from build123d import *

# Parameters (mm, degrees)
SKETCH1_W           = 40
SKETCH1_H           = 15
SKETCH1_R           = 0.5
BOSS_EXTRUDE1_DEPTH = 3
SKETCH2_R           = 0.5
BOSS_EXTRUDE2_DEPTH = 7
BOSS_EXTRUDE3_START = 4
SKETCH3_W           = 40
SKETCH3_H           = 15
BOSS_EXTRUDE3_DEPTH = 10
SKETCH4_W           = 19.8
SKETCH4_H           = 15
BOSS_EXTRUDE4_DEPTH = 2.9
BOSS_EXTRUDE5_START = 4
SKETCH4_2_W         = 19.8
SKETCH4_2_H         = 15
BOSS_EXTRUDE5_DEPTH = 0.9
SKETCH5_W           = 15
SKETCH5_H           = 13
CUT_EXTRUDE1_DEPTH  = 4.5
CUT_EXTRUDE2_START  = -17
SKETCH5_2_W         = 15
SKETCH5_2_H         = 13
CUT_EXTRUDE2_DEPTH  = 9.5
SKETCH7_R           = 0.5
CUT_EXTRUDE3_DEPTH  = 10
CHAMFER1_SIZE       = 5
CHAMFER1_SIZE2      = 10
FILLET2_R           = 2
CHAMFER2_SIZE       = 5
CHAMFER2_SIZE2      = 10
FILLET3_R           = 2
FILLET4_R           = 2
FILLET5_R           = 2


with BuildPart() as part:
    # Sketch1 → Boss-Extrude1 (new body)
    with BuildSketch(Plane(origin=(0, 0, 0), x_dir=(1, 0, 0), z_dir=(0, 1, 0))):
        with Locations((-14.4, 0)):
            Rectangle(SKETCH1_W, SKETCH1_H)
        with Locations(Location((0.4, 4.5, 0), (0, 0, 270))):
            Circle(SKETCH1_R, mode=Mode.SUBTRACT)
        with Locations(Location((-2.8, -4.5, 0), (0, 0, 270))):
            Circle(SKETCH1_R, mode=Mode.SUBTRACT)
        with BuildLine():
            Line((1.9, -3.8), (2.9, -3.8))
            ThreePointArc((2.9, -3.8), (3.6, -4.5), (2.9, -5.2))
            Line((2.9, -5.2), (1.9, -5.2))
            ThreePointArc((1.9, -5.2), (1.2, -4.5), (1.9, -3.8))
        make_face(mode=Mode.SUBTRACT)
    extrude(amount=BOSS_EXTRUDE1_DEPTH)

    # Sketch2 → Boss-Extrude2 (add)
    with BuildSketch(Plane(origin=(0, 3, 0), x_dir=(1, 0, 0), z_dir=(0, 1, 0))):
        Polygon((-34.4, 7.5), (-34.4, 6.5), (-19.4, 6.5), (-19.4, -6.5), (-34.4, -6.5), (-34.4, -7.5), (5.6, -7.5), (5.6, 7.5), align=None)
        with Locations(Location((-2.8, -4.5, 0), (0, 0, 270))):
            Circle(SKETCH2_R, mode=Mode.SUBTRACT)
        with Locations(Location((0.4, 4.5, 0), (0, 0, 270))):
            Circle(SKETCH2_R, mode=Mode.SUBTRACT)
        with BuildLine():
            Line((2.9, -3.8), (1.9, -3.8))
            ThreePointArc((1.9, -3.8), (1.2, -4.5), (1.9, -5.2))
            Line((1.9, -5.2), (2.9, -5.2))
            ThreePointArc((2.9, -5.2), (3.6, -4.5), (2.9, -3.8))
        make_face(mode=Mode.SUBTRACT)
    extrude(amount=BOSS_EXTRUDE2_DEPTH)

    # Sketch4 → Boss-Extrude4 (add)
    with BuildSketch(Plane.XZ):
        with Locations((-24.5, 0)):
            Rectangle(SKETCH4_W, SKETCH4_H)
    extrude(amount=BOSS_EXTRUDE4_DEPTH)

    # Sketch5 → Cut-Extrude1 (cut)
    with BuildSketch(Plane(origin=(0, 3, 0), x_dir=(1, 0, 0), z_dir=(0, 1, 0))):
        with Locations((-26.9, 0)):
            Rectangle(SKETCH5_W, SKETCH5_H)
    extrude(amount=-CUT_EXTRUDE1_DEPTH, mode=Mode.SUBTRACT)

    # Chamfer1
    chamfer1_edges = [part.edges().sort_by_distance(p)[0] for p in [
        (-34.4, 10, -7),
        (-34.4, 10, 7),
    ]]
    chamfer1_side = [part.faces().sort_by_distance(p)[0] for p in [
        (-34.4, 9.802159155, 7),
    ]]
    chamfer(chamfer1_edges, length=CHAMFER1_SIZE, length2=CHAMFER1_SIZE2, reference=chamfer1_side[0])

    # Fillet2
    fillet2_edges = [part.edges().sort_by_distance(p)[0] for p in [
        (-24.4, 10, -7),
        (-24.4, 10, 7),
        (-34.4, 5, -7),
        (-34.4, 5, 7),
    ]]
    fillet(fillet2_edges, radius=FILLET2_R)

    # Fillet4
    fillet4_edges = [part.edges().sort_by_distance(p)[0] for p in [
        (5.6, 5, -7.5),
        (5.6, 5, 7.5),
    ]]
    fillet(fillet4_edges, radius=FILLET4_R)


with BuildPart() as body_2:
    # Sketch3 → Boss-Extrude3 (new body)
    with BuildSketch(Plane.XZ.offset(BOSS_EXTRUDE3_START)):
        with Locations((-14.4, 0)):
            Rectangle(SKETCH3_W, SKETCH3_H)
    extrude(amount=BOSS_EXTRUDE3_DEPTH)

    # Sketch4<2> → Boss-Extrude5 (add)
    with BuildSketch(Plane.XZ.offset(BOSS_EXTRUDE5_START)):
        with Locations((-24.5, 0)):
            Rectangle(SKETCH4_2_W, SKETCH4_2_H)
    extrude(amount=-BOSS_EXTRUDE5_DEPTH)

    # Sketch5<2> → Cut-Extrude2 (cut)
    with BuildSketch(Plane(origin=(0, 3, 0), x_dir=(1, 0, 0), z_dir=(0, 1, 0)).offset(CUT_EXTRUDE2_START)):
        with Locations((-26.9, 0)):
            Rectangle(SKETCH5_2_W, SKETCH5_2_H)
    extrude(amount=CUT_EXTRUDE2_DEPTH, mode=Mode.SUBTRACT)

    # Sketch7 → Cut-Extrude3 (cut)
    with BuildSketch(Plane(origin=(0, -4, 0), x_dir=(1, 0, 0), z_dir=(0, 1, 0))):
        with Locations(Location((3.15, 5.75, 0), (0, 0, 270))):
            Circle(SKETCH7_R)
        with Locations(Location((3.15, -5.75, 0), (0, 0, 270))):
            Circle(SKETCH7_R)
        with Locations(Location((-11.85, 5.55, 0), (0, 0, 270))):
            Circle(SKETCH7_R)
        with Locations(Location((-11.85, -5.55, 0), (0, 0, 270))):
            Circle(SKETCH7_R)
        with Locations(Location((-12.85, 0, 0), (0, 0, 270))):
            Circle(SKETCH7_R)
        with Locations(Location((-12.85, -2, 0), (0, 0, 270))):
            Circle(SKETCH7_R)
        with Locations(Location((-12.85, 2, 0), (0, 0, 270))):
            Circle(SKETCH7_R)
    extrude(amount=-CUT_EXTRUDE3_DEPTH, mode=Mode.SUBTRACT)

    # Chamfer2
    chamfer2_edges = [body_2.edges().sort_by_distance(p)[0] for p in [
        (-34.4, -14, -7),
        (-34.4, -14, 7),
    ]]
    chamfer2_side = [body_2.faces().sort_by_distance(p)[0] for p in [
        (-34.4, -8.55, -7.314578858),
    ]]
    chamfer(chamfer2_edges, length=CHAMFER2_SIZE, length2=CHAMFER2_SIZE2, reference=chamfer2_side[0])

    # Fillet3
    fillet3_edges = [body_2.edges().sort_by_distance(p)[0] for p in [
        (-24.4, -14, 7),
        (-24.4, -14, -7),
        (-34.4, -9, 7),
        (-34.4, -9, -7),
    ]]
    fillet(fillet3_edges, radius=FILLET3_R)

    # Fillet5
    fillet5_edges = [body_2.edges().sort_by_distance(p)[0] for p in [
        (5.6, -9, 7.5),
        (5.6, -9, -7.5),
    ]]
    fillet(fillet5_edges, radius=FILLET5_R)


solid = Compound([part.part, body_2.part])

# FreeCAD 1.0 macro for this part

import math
import FreeCAD as App
import Part
import Sketcher
Q = App.Units.Quantity


def edges_at(feature, points):
    """Names of the edges that pass closest to the given points."""
    edges = feature.Shape.Edges
    near = lambda p: min(range(len(edges)), key=lambda i: edges[i].distToShape(Part.Vertex(*p))[0])
    return sorted({f"Edge{near(p) + 1}" for p in points})

doc = App.newDocument("Part")
body = doc.addObject("PartDesign::Body", "Body")

sketch1 = body.newObject("Sketcher::SketchObject", "Sketch")
sketch1.AttachmentSupport = (doc.getObject("XZ_Plane"), [""])
sketch1.MapMode = "FlatFace"
sketch1.addGeometry(Part.LineSegment(App.Vector(-34.4, -7.5, 0), App.Vector(-34.4, 7.5, 0)), False)
sketch1.addGeometry(Part.LineSegment(App.Vector(-34.4, 7.5, 0), App.Vector(5.6, 7.5, 0)), False)
sketch1.addGeometry(Part.LineSegment(App.Vector(5.6, 7.5, 0), App.Vector(5.6, -7.5, 0)), False)
sketch1.addGeometry(Part.LineSegment(App.Vector(5.6, -7.5, 0), App.Vector(-34.4, -7.5, 0)), False)
sketch1.addGeometry(Part.Circle(App.Vector(-2.8, 4.5, 0), App.Vector(0, 0, 1), 0.5), False)
sketch1.addGeometry(Part.ArcOfCircle(Part.Circle(App.Vector(1.9, 4.5, 0), App.Vector(0, 0, 1), 0.7), math.radians(90), math.radians(270)), False)
sketch1.addGeometry(Part.LineSegment(App.Vector(1.9, 3.8, 0), App.Vector(2.9, 3.8, 0)), False)
sketch1.addGeometry(Part.ArcOfCircle(Part.Circle(App.Vector(2.9, 4.5, 0), App.Vector(0, 0, 1), 0.7), math.radians(-90), math.radians(90)), False)
sketch1.addGeometry(Part.LineSegment(App.Vector(2.9, 5.2, 0), App.Vector(1.9, 5.2, 0)), False)
sketch1.addGeometry(Part.Circle(App.Vector(0.4, -4.5, 0), App.Vector(0, 0, 1), 0.5), False)
sketch1.addConstraint(Sketcher.Constraint("Coincident", 0, 2, 1, 1))
sketch1.addConstraint(Sketcher.Constraint("Coincident", 1, 2, 2, 1))
sketch1.addConstraint(Sketcher.Constraint("Coincident", 2, 2, 3, 1))
sketch1.addConstraint(Sketcher.Constraint("Coincident", 3, 2, 0, 1))
sketch1.addConstraint(Sketcher.Constraint("Tangent", 5, 2, 6, 1))
sketch1.addConstraint(Sketcher.Constraint("Tangent", 6, 2, 7, 1))
sketch1.addConstraint(Sketcher.Constraint("Tangent", 7, 2, 8, 1))
sketch1.addConstraint(Sketcher.Constraint("Tangent", 8, 2, 5, 1))
sketch1.addConstraint(Sketcher.Constraint("Vertical", 0))
sketch1.addConstraint(Sketcher.Constraint("Horizontal", 1))
sketch1.addConstraint(Sketcher.Constraint("Vertical", 2))
sketch1.addConstraint(Sketcher.Constraint("Horizontal", 3))
sketch1.addConstraint(Sketcher.Constraint("Horizontal", 6))
sketch1.addConstraint(Sketcher.Constraint("Horizontal", 8))
sketch1.addConstraint(Sketcher.Constraint("Equal", 4, 9))
sketch1.addConstraint(Sketcher.Constraint("Horizontal", 4, 3, 5, 3))
sketch1.addConstraint(Sketcher.Constraint("Diameter", 4, Q("1 mm")))
sketch1.addConstraint(Sketcher.Constraint("Radius", 5, Q("0.7 mm")))
sketch1.addConstraint(Sketcher.Constraint("DistanceX", 1, 1, 1, 2, Q("40 mm")))
sketch1.addConstraint(Sketcher.Constraint("DistanceX", 6, 1, 6, 2, Q("1 mm")))
sketch1.addConstraint(Sketcher.Constraint("DistanceY", 0, 1, 0, 2, Q("15 mm")))
sketch1.addConstraint(Sketcher.Constraint("DistanceY", 9, 3, 5, 3, Q("9 mm")))
sketch1.addConstraint(Sketcher.Constraint("DistanceY", 4, 3, 0, 2, Q("3 mm")))
sketch1.addConstraint(Sketcher.Constraint("DistanceX", 4, 3, -1, 1, Q("2.8 mm")))
sketch1.addConstraint(Sketcher.Constraint("DistanceY", -1, 1, 4, 3, Q("4.5 mm")))
sketch1.addConstraint(Sketcher.Constraint("DistanceX", -1, 1, 5, 3, Q("1.9 mm")))
sketch1.addConstraint(Sketcher.Constraint("DistanceX", -1, 1, 9, 3, Q("0.4 mm")))
sketch1.addConstraint(Sketcher.Constraint("DistanceX", 0, 2, -1, 1, Q("34.4 mm")))
pad1 = body.newObject("PartDesign::Pad", "Pad")
pad1.Profile = sketch1
pad1.Length = 3
pad1.Reversed = True

sketch2 = body.newObject("Sketcher::SketchObject", "Sketch001")
sketch2.AttachmentSupport = (doc.getObject("XZ_Plane"), [""])
sketch2.MapMode = "FlatFace"
sketch2.AttachmentOffset = App.Placement(App.Vector(0, 0, -3), App.Rotation())
sketch2.addGeometry(Part.LineSegment(App.Vector(-34.4, -7.5, 0), App.Vector(-34.4, -6.5, 0)), False)
sketch2.addGeometry(Part.LineSegment(App.Vector(-34.4, -6.5, 0), App.Vector(-19.4, -6.5, 0)), False)
sketch2.addGeometry(Part.LineSegment(App.Vector(-19.4, -6.5, 0), App.Vector(-19.4, 6.5, 0)), False)
sketch2.addGeometry(Part.LineSegment(App.Vector(-19.4, 6.5, 0), App.Vector(-34.4, 6.5, 0)), False)
sketch2.addGeometry(Part.LineSegment(App.Vector(-34.4, 6.5, 0), App.Vector(-34.4, 7.5, 0)), False)
sketch2.addGeometry(Part.LineSegment(App.Vector(-34.4, 7.5, 0), App.Vector(5.6, 7.5, 0)), False)
sketch2.addGeometry(Part.LineSegment(App.Vector(5.6, 7.5, 0), App.Vector(5.6, -7.5, 0)), False)
sketch2.addGeometry(Part.LineSegment(App.Vector(5.6, -7.5, 0), App.Vector(-34.4, -7.5, 0)), False)
sketch2.addGeometry(Part.Circle(App.Vector(-2.8, 4.5, 0), App.Vector(0, 0, 1), 0.5), False)
sketch2.addGeometry(Part.LineSegment(App.Vector(1.9, 3.8, 0), App.Vector(2.9, 3.8, 0)), False)
sketch2.addGeometry(Part.ArcOfCircle(Part.Circle(App.Vector(2.9, 4.5, 0), App.Vector(0, 0, 1), 0.7), math.radians(-90), math.radians(90)), False)
sketch2.addGeometry(Part.LineSegment(App.Vector(2.9, 5.2, 0), App.Vector(1.9, 5.2, 0)), False)
sketch2.addGeometry(Part.ArcOfCircle(Part.Circle(App.Vector(1.9, 4.5, 0), App.Vector(0, 0, 1), 0.7), math.radians(90), math.radians(270)), False)
sketch2.addGeometry(Part.Circle(App.Vector(0.4, -4.5, 0), App.Vector(0, 0, 1), 0.5), False)
sketch2.addConstraint(Sketcher.Constraint("Coincident", 0, 2, 1, 1))
sketch2.addConstraint(Sketcher.Constraint("Coincident", 1, 2, 2, 1))
sketch2.addConstraint(Sketcher.Constraint("Coincident", 2, 2, 3, 1))
sketch2.addConstraint(Sketcher.Constraint("Coincident", 3, 2, 4, 1))
sketch2.addConstraint(Sketcher.Constraint("Coincident", 4, 2, 5, 1))
sketch2.addConstraint(Sketcher.Constraint("Coincident", 5, 2, 6, 1))
sketch2.addConstraint(Sketcher.Constraint("Coincident", 6, 2, 7, 1))
sketch2.addConstraint(Sketcher.Constraint("Coincident", 7, 2, 0, 1))
sketch2.addConstraint(Sketcher.Constraint("Tangent", 9, 2, 10, 1))
sketch2.addConstraint(Sketcher.Constraint("Tangent", 10, 2, 11, 1))
sketch2.addConstraint(Sketcher.Constraint("Tangent", 11, 2, 12, 1))
sketch2.addConstraint(Sketcher.Constraint("Tangent", 12, 2, 9, 1))
sketch2.addConstraint(Sketcher.Constraint("Vertical", 0))
sketch2.addConstraint(Sketcher.Constraint("Horizontal", 1))
sketch2.addConstraint(Sketcher.Constraint("Vertical", 2))
sketch2.addConstraint(Sketcher.Constraint("Horizontal", 3))
sketch2.addConstraint(Sketcher.Constraint("Vertical", 4))
sketch2.addConstraint(Sketcher.Constraint("Horizontal", 5))
sketch2.addConstraint(Sketcher.Constraint("Vertical", 6))
sketch2.addConstraint(Sketcher.Constraint("Horizontal", 7))
sketch2.addConstraint(Sketcher.Constraint("Horizontal", 9))
sketch2.addConstraint(Sketcher.Constraint("Horizontal", 11))
sketch2.addConstraint(Sketcher.Constraint("Equal", 8, 13))
sketch2.addConstraint(Sketcher.Constraint("Symmetric", 0, 2, 3, 2, -1))
sketch2.addConstraint(Sketcher.Constraint("Horizontal", 8, 3, 10, 3))
sketch2.addConstraint(Sketcher.Constraint("Equal", 11, 0))
sketch2.addConstraint(Sketcher.Constraint("Equal", 0, 4))
sketch2.addConstraint(Sketcher.Constraint("Equal", 3, 6))
sketch2.addConstraint(Sketcher.Constraint("Diameter", 8, Q("1 mm")))
sketch2.addConstraint(Sketcher.Constraint("Radius", 10, Q("0.7 mm")))
sketch2.addConstraint(Sketcher.Constraint("DistanceX", 1, 1, 1, 2, Q("15 mm")))
sketch2.addConstraint(Sketcher.Constraint("DistanceX", 5, 1, 5, 2, Q("40 mm")))
sketch2.addConstraint(Sketcher.Constraint("DistanceX", 9, 1, 9, 2, Q("1 mm")))
sketch2.addConstraint(Sketcher.Constraint("DistanceY", 13, 3, 12, 3, Q("9 mm")))
sketch2.addConstraint(Sketcher.Constraint("DistanceY", 0, 2, 8, 3, Q("11 mm")))
sketch2.addConstraint(Sketcher.Constraint("DistanceX", 8, 3, -1, 1, Q("2.8 mm")))
sketch2.addConstraint(Sketcher.Constraint("DistanceX", -1, 1, 10, 3, Q("2.9 mm")))
sketch2.addConstraint(Sketcher.Constraint("DistanceX", -1, 1, 13, 3, Q("0.4 mm")))
sketch2.addConstraint(Sketcher.Constraint("DistanceX", 0, 2, -1, 1, Q("34.4 mm")))
pad2 = body.newObject("PartDesign::Pad", "Pad001")
pad2.Profile = sketch2
pad2.Length = 7
pad2.Reversed = True

sketch3 = body.newObject("Sketcher::SketchObject", "Sketch002")
sketch3.AttachmentSupport = (doc.getObject("XZ_Plane"), [""])
sketch3.MapMode = "FlatFace"
sketch3.addGeometry(Part.LineSegment(App.Vector(-34, 8, 0), App.Vector(-34, -8, 0)), False)
sketch3.addGeometry(Part.LineSegment(App.Vector(-34, -8, 0), App.Vector(-15, -8, 0)), False)
sketch3.addGeometry(Part.LineSegment(App.Vector(-15, -8, 0), App.Vector(-15, 8, 0)), False)
sketch3.addGeometry(Part.LineSegment(App.Vector(-15, 8, 0), App.Vector(-34, 8, 0)), False)
sketch3.addConstraint(Sketcher.Constraint("Coincident", 0, 2, 1, 1))
sketch3.addConstraint(Sketcher.Constraint("Coincident", 1, 2, 2, 1))
sketch3.addConstraint(Sketcher.Constraint("Coincident", 2, 2, 3, 1))
sketch3.addConstraint(Sketcher.Constraint("Coincident", 3, 2, 0, 1))
sketch3.addConstraint(Sketcher.Constraint("Vertical", 0))
sketch3.addConstraint(Sketcher.Constraint("Horizontal", 1))
sketch3.addConstraint(Sketcher.Constraint("Vertical", 2))
sketch3.addConstraint(Sketcher.Constraint("Horizontal", 3))
sketch3.addConstraint(Sketcher.Constraint("DistanceY", 0, 2, 0, 1, Q("15 mm")))
sketch3.addConstraint(Sketcher.Constraint("DistanceX", 1, 1, 1, 2, Q("19.8 mm")))
sketch3.addConstraint(Sketcher.Constraint("DistanceX", 0, 2, -1, 1, Q("34.4 mm")))
sketch3.addConstraint(Sketcher.Constraint("DistanceY", 0, 2, -1, 1, Q("7.5 mm")))
pad3 = body.newObject("PartDesign::Pad", "Pad002")
pad3.Profile = sketch3
pad3.Length = 2.9

sketch4 = body.newObject("Sketcher::SketchObject", "Sketch003")
sketch4.AttachmentSupport = (doc.getObject("XZ_Plane"), [""])
sketch4.MapMode = "FlatFace"
sketch4.AttachmentOffset = App.Placement(App.Vector(0, 0, -3), App.Rotation())
sketch4.addGeometry(Part.LineSegment(App.Vector(-34, -6, 0), App.Vector(-34, 6, 0)), False)
sketch4.addGeometry(Part.LineSegment(App.Vector(-34, 6, 0), App.Vector(-19, 6, 0)), False)
sketch4.addGeometry(Part.LineSegment(App.Vector(-19, 6, 0), App.Vector(-19, -6, 0)), False)
sketch4.addGeometry(Part.LineSegment(App.Vector(-19, -6, 0), App.Vector(-34, -6, 0)), False)
sketch4.addConstraint(Sketcher.Constraint("Coincident", 0, 2, 1, 1))
sketch4.addConstraint(Sketcher.Constraint("Coincident", 1, 2, 2, 1))
sketch4.addConstraint(Sketcher.Constraint("Coincident", 2, 2, 3, 1))
sketch4.addConstraint(Sketcher.Constraint("Coincident", 3, 2, 0, 1))
sketch4.addConstraint(Sketcher.Constraint("Vertical", 0))
sketch4.addConstraint(Sketcher.Constraint("Horizontal", 1))
sketch4.addConstraint(Sketcher.Constraint("Vertical", 2))
sketch4.addConstraint(Sketcher.Constraint("Horizontal", 3))
sketch4.addConstraint(Sketcher.Constraint("DistanceX", 1, 1, 1, 2, Q("15 mm")))
sketch4.addConstraint(Sketcher.Constraint("DistanceY", 0, 1, 0, 2, Q("13 mm")))
sketch4.addConstraint(Sketcher.Constraint("DistanceX", 0, 2, -1, 1, Q("34.4 mm")))
sketch4.addConstraint(Sketcher.Constraint("DistanceY", -1, 1, 0, 2, Q("6.5 mm")))
pocket1 = body.newObject("PartDesign::Pocket", "Pocket")
pocket1.Profile = sketch4
pocket1.Length = 4.5
pocket1.Reversed = True
doc.recompute()

chamfer = body.newObject("PartDesign::Chamfer", "Chamfer")
chamfer.Base = (pocket1, edges_at(pocket1, [(-34.4, 10, -7), (-34.4, 10, 7)]))
chamfer.ChamferType = "Two distances"
chamfer.Size = 5
chamfer.Size2 = 10
doc.recompute()

fillet = body.newObject("PartDesign::Fillet", "Fillet")
fillet.Base = (chamfer, edges_at(chamfer, [
    (-24.4, 10, -7),
    (-24.4, 10, 7),
    (-34.4, 5, -7),
    (-34.4, 5, 7),
]))
fillet.Radius = 2
doc.recompute()

fillet2 = body.newObject("PartDesign::Fillet", "Fillet001")
fillet2.Base = (fillet, edges_at(fillet, [(5.6, 5, -7.5), (5.6, 5, 7.5)]))
fillet2.Radius = 2
body2 = doc.addObject("PartDesign::Body", "Body001")

sketch5 = body2.newObject("Sketcher::SketchObject", "Sketch004")
sketch5.AttachmentSupport = (doc.getObject("XZ_Plane001"), [""])
sketch5.MapMode = "FlatFace"
sketch5.AttachmentOffset = App.Placement(App.Vector(0, 0, 4), App.Rotation())
sketch5.addGeometry(Part.LineSegment(App.Vector(-34, 8, 0), App.Vector(-34, -8, 0)), False)
sketch5.addGeometry(Part.LineSegment(App.Vector(-34, -8, 0), App.Vector(6, -8, 0)), False)
sketch5.addGeometry(Part.LineSegment(App.Vector(6, -8, 0), App.Vector(6, 8, 0)), False)
sketch5.addGeometry(Part.LineSegment(App.Vector(6, 8, 0), App.Vector(-34, 8, 0)), False)
sketch5.addConstraint(Sketcher.Constraint("Coincident", 0, 2, 1, 1))
sketch5.addConstraint(Sketcher.Constraint("Coincident", 1, 2, 2, 1))
sketch5.addConstraint(Sketcher.Constraint("Coincident", 2, 2, 3, 1))
sketch5.addConstraint(Sketcher.Constraint("Coincident", 3, 2, 0, 1))
sketch5.addConstraint(Sketcher.Constraint("Vertical", 0))
sketch5.addConstraint(Sketcher.Constraint("Horizontal", 1))
sketch5.addConstraint(Sketcher.Constraint("Vertical", 2))
sketch5.addConstraint(Sketcher.Constraint("Horizontal", 3))
sketch5.addConstraint(Sketcher.Constraint("DistanceX", 1, 1, 1, 2, Q("40 mm")))
sketch5.addConstraint(Sketcher.Constraint("DistanceY", 0, 2, 0, 1, Q("15 mm")))
sketch5.addConstraint(Sketcher.Constraint("DistanceX", 0, 2, -1, 1, Q("34.4 mm")))
sketch5.addConstraint(Sketcher.Constraint("DistanceY", 0, 2, -1, 1, Q("7.5 mm")))
pad4 = body2.newObject("PartDesign::Pad", "Pad003")
pad4.Profile = sketch5
pad4.Length = 10

sketch6 = body2.newObject("Sketcher::SketchObject", "Sketch005")
sketch6.AttachmentSupport = (doc.getObject("XZ_Plane001"), [""])
sketch6.MapMode = "FlatFace"
sketch6.AttachmentOffset = App.Placement(App.Vector(0, 0, 4), App.Rotation())
sketch6.addGeometry(Part.LineSegment(App.Vector(-34, 8, 0), App.Vector(-34, -8, 0)), False)
sketch6.addGeometry(Part.LineSegment(App.Vector(-34, -8, 0), App.Vector(-15, -8, 0)), False)
sketch6.addGeometry(Part.LineSegment(App.Vector(-15, -8, 0), App.Vector(-15, 8, 0)), False)
sketch6.addGeometry(Part.LineSegment(App.Vector(-15, 8, 0), App.Vector(-34, 8, 0)), False)
sketch6.addConstraint(Sketcher.Constraint("Coincident", 0, 2, 1, 1))
sketch6.addConstraint(Sketcher.Constraint("Coincident", 1, 2, 2, 1))
sketch6.addConstraint(Sketcher.Constraint("Coincident", 2, 2, 3, 1))
sketch6.addConstraint(Sketcher.Constraint("Coincident", 3, 2, 0, 1))
sketch6.addConstraint(Sketcher.Constraint("Vertical", 0))
sketch6.addConstraint(Sketcher.Constraint("Horizontal", 1))
sketch6.addConstraint(Sketcher.Constraint("Vertical", 2))
sketch6.addConstraint(Sketcher.Constraint("Horizontal", 3))
sketch6.addConstraint(Sketcher.Constraint("DistanceY", 0, 2, 0, 1, Q("15 mm")))
sketch6.addConstraint(Sketcher.Constraint("DistanceX", 1, 1, 1, 2, Q("19.8 mm")))
sketch6.addConstraint(Sketcher.Constraint("DistanceX", 0, 2, -1, 1, Q("34.4 mm")))
sketch6.addConstraint(Sketcher.Constraint("DistanceY", 0, 2, -1, 1, Q("7.5 mm")))
pad5 = body2.newObject("PartDesign::Pad", "Pad004")
pad5.Profile = sketch6
pad5.Length = 0.9
pad5.Reversed = True

sketch7 = body2.newObject("Sketcher::SketchObject", "Sketch006")
sketch7.AttachmentSupport = (doc.getObject("XZ_Plane001"), [""])
sketch7.MapMode = "FlatFace"
sketch7.AttachmentOffset = App.Placement(App.Vector(0, 0, 14), App.Rotation())
sketch7.addGeometry(Part.LineSegment(App.Vector(-34, -6, 0), App.Vector(-34, 6, 0)), False)
sketch7.addGeometry(Part.LineSegment(App.Vector(-34, 6, 0), App.Vector(-19, 6, 0)), False)
sketch7.addGeometry(Part.LineSegment(App.Vector(-19, 6, 0), App.Vector(-19, -6, 0)), False)
sketch7.addGeometry(Part.LineSegment(App.Vector(-19, -6, 0), App.Vector(-34, -6, 0)), False)
sketch7.addConstraint(Sketcher.Constraint("Coincident", 0, 2, 1, 1))
sketch7.addConstraint(Sketcher.Constraint("Coincident", 1, 2, 2, 1))
sketch7.addConstraint(Sketcher.Constraint("Coincident", 2, 2, 3, 1))
sketch7.addConstraint(Sketcher.Constraint("Coincident", 3, 2, 0, 1))
sketch7.addConstraint(Sketcher.Constraint("Vertical", 0))
sketch7.addConstraint(Sketcher.Constraint("Horizontal", 1))
sketch7.addConstraint(Sketcher.Constraint("Vertical", 2))
sketch7.addConstraint(Sketcher.Constraint("Horizontal", 3))
sketch7.addConstraint(Sketcher.Constraint("DistanceX", 1, 1, 1, 2, Q("15 mm")))
sketch7.addConstraint(Sketcher.Constraint("DistanceY", 0, 1, 0, 2, Q("13 mm")))
sketch7.addConstraint(Sketcher.Constraint("DistanceX", 0, 2, -1, 1, Q("34.4 mm")))
sketch7.addConstraint(Sketcher.Constraint("DistanceY", -1, 1, 0, 2, Q("6.5 mm")))
pocket2 = body2.newObject("PartDesign::Pocket", "Pocket001")
pocket2.Profile = sketch7
pocket2.Length = 9.5

sketch8 = body2.newObject("Sketcher::SketchObject", "Sketch007")
sketch8.AttachmentSupport = (doc.getObject("XZ_Plane001"), [""])
sketch8.MapMode = "FlatFace"
sketch8.AttachmentOffset = App.Placement(App.Vector(0, 0, 4), App.Rotation())
sketch8.addGeometry(Part.Circle(App.Vector(3.1, -5.8, 0), App.Vector(0, 0, 1), 0.5), False)
sketch8.addGeometry(Part.Circle(App.Vector(3.1, 5.8, 0), App.Vector(0, 0, 1), 0.5), False)
sketch8.addGeometry(Part.Circle(App.Vector(-11.8, -5.5, 0), App.Vector(0, 0, 1), 0.5), False)
sketch8.addGeometry(Part.Circle(App.Vector(-11.8, 5.5, 0), App.Vector(0, 0, 1), 0.5), False)
sketch8.addGeometry(Part.Circle(App.Vector(-12.8, 0, 0), App.Vector(0, 0, 1), 0.5), False)
sketch8.addGeometry(Part.Circle(App.Vector(-12.8, 2, 0), App.Vector(0, 0, 1), 0.5), False)
sketch8.addGeometry(Part.Circle(App.Vector(-12.8, -2, 0), App.Vector(0, 0, 1), 0.5), False)
sketch8.addConstraint(Sketcher.Constraint("Equal", 0, 1))
sketch8.addConstraint(Sketcher.Constraint("Equal", 1, 2))
sketch8.addConstraint(Sketcher.Constraint("Equal", 2, 3))
sketch8.addConstraint(Sketcher.Constraint("Equal", 3, 4))
sketch8.addConstraint(Sketcher.Constraint("Equal", 4, 5))
sketch8.addConstraint(Sketcher.Constraint("Equal", 5, 6))
sketch8.addConstraint(Sketcher.Constraint("Symmetric", 0, 3, 1, 3, -1))
sketch8.addConstraint(Sketcher.Constraint("Symmetric", 2, 3, 3, 3, -1))
sketch8.addConstraint(Sketcher.Constraint("Symmetric", 5, 3, 6, 3, -1))
sketch8.addConstraint(Sketcher.Constraint("PointOnObject", 4, 3, -1))
sketch8.addConstraint(Sketcher.Constraint("Vertical", 4, 3, 5, 3))
sketch8.addConstraint(Sketcher.Constraint("Diameter", 0, Q("1 mm")))
sketch8.addConstraint(Sketcher.Constraint("DistanceY", -1, 1, 5, 3, Q("2 mm")))
sketch8.addConstraint(Sketcher.Constraint("DistanceX", 2, 3, 0, 3, Q("15 mm")))
sketch8.addConstraint(Sketcher.Constraint("DistanceX", 4, 3, 2, 3, Q("1 mm")))
sketch8.addConstraint(Sketcher.Constraint("DistanceY", 0, 3, 1, 3, Q("11.5 mm")))
sketch8.addConstraint(Sketcher.Constraint("DistanceY", 0, 3, 2, 3, Q("0.2 mm")))
sketch8.addConstraint(Sketcher.Constraint("DistanceX", -1, 1, 0, 3, Q("3.15 mm")))
pocket3 = body2.newObject("PartDesign::Pocket", "Pocket002")
pocket3.Profile = sketch8
pocket3.Length = 10
pocket3.Reversed = True
doc.recompute()

chamfer2 = body2.newObject("PartDesign::Chamfer", "Chamfer001")
chamfer2.Base = (pocket3, edges_at(pocket3, [(-34.4, -14, -7), (-34.4, -14, 7)]))
chamfer2.ChamferType = "Two distances"
chamfer2.Size = 5
chamfer2.Size2 = 10
chamfer2.FlipDirection = True
doc.recompute()

fillet3 = body2.newObject("PartDesign::Fillet", "Fillet002")
fillet3.Base = (chamfer2, edges_at(chamfer2, [
    (-24.4, -14, 7),
    (-24.4, -14, -7),
    (-34.4, -9, 7),
    (-34.4, -9, -7),
]))
fillet3.Radius = 2
doc.recompute()

fillet4 = body2.newObject("PartDesign::Fillet", "Fillet003")
fillet4.Base = (fillet3, edges_at(fillet3, [(5.6, -9, 7.5), (5.6, -9, -7.5)]))
fillet4.Radius = 2

doc.recompute()
